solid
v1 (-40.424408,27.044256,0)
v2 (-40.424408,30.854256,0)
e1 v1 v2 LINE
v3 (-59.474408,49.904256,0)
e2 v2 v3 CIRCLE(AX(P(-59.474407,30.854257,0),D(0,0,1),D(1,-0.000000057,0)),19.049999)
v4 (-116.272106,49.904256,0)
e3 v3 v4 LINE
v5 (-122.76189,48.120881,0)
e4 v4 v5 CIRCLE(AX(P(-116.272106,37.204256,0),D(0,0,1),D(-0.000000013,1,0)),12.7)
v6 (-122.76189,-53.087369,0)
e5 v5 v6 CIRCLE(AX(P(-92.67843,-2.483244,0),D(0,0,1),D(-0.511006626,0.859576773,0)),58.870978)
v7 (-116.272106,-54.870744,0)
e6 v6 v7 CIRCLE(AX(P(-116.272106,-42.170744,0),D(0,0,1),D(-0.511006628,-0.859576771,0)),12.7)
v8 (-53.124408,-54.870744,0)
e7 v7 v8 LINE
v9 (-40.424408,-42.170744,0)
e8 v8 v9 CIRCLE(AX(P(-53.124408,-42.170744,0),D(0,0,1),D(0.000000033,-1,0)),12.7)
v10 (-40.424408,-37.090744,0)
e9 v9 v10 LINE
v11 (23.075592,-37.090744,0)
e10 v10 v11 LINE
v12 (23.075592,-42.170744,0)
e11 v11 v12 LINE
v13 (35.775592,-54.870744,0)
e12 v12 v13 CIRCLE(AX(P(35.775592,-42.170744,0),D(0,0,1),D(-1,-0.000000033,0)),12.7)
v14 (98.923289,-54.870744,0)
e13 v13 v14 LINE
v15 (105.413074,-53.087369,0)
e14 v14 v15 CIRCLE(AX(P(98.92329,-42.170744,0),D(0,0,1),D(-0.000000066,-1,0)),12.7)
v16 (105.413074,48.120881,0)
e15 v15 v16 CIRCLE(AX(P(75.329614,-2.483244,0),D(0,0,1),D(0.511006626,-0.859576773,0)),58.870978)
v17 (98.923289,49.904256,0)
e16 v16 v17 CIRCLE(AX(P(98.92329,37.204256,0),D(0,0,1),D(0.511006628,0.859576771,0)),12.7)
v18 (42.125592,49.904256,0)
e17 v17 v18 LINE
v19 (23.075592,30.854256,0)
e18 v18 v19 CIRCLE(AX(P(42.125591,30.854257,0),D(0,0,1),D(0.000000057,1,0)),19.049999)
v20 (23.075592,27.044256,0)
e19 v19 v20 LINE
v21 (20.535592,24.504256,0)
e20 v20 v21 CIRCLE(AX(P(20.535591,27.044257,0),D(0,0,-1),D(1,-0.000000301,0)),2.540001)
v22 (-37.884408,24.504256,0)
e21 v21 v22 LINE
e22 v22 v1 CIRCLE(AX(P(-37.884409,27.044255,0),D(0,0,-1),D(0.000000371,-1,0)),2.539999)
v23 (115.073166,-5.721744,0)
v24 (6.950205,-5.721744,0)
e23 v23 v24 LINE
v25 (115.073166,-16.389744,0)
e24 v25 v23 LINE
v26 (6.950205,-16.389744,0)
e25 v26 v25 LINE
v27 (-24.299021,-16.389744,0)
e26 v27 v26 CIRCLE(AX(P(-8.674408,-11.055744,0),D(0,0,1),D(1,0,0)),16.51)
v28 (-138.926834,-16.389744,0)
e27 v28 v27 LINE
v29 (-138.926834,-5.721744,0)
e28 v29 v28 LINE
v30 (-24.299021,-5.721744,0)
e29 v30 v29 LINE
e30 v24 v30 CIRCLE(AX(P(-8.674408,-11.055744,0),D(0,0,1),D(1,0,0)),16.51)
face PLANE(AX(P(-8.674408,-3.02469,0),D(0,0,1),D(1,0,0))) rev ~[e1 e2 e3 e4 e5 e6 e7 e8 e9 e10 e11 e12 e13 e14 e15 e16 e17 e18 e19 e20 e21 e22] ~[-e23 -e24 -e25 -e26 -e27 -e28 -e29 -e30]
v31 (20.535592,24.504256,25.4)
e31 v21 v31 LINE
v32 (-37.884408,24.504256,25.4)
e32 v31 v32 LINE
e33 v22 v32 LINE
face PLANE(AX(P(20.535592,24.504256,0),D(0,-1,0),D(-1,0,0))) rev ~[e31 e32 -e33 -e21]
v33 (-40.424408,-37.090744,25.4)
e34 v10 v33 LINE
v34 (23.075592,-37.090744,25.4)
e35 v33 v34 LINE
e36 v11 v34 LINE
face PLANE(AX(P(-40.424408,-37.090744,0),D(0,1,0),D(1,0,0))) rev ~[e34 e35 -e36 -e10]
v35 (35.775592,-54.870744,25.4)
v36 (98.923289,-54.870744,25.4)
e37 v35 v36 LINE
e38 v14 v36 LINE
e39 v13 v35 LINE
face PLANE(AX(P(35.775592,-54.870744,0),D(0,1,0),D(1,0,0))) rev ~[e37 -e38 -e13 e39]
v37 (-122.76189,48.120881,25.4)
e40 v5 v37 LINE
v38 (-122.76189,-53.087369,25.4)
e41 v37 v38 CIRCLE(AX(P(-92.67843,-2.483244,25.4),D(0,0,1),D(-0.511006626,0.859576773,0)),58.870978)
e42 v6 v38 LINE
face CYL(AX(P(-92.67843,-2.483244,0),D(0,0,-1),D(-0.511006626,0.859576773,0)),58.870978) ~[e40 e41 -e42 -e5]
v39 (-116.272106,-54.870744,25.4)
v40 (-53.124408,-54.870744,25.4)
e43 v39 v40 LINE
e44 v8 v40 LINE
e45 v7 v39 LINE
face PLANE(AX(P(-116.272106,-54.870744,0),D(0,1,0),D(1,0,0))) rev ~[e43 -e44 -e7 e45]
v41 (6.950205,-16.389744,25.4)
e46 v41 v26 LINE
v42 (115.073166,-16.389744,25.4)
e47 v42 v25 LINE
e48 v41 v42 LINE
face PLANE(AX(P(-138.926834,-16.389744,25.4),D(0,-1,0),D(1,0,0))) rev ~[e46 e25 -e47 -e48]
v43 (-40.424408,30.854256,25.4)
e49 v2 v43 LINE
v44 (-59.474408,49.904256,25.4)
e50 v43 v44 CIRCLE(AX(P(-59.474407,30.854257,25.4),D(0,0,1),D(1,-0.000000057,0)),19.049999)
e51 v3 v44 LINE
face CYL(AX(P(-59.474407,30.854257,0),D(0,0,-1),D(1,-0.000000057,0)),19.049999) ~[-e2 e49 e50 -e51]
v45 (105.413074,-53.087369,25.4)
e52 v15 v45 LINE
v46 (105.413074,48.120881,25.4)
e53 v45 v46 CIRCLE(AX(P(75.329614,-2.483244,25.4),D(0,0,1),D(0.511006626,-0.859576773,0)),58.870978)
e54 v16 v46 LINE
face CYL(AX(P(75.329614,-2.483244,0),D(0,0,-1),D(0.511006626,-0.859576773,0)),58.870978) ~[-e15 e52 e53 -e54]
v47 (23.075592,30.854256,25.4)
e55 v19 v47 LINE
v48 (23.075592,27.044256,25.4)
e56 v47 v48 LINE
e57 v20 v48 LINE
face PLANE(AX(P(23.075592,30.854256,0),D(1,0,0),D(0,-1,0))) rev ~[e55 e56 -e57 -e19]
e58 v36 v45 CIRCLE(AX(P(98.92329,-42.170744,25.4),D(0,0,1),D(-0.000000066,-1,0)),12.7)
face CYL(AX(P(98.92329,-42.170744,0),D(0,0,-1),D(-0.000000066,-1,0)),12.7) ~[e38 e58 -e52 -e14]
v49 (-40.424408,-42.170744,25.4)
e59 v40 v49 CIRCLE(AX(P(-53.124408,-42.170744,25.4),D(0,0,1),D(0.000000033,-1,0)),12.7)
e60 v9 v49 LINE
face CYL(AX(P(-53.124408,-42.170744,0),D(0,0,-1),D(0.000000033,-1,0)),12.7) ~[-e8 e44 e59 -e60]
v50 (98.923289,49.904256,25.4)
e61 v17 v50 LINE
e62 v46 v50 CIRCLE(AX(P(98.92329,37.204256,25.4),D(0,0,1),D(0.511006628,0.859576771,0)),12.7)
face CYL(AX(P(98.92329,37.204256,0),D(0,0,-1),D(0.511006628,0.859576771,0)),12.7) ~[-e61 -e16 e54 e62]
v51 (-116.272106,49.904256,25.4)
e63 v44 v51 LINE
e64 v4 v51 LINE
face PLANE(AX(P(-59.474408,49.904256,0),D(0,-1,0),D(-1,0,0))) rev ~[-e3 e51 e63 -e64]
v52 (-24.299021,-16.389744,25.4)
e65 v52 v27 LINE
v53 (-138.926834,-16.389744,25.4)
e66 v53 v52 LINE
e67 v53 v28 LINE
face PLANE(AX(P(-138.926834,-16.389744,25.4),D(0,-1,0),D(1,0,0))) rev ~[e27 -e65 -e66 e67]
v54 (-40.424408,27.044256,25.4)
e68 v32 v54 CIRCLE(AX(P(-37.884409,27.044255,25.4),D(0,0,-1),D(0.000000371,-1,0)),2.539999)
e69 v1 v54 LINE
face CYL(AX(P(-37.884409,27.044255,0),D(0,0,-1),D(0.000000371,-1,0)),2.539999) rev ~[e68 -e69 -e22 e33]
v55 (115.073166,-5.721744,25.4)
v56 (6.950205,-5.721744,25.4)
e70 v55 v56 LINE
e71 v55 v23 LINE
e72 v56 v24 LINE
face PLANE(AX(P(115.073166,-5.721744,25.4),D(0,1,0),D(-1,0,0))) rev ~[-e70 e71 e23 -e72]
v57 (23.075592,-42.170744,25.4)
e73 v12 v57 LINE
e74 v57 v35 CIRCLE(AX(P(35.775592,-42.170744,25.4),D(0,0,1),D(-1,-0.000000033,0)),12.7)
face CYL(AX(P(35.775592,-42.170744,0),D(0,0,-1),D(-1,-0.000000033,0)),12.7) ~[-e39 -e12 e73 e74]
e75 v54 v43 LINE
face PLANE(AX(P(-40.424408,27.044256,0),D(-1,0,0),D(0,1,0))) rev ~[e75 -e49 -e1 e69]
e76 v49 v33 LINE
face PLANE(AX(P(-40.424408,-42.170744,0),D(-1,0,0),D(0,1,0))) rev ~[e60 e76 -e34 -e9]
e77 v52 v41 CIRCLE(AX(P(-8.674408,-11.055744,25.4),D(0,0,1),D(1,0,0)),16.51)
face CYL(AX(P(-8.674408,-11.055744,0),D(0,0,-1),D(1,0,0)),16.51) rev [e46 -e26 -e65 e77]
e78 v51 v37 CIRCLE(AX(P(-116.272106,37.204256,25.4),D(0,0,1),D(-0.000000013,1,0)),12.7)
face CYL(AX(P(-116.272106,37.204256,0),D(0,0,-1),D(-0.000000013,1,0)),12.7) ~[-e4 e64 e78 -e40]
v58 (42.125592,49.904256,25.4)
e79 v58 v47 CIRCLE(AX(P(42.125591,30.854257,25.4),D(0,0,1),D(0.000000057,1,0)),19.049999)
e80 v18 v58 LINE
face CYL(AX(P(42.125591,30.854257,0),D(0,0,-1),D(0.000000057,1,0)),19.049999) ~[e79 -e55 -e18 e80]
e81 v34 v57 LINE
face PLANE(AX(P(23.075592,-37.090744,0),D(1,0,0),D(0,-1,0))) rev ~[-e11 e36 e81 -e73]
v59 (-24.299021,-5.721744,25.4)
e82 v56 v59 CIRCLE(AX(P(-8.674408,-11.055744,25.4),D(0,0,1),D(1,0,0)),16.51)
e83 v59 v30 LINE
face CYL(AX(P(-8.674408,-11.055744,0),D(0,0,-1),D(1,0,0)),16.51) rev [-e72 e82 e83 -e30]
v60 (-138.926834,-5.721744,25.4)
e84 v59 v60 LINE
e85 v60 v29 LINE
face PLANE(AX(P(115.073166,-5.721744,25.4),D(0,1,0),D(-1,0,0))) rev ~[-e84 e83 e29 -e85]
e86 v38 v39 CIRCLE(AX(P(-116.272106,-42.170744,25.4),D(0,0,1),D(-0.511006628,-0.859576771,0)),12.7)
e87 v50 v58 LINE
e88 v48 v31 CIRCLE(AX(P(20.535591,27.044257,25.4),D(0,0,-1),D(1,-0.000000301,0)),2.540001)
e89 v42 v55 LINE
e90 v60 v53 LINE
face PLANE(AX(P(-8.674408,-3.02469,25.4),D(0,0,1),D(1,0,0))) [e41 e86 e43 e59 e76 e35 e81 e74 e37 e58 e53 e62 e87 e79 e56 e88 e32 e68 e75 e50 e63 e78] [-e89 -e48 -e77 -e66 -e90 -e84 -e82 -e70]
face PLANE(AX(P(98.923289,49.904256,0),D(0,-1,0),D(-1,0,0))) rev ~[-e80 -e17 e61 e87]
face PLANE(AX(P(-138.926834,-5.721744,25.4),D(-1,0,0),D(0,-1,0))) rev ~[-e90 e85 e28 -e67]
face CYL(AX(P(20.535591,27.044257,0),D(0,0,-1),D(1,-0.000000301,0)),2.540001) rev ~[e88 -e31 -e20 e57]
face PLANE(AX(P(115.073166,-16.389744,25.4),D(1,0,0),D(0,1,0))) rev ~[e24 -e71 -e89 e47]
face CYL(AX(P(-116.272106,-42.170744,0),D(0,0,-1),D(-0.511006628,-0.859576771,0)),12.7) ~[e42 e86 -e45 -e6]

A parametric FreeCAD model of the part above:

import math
import FreeCAD as App
import Part
import Sketcher

V = App.Vector
Q = App.Units.Quantity


def add_polygon(sketch, points):
    """Adds a closed chain of lines whose ends are joined by coincident constraints."""
    first, n = sketch.GeometryCount, len(points)
    for a, b in zip(points, points[1:] + points[:1]):
        sketch.addGeometry(Part.LineSegment(App.Vector(*a, 0), App.Vector(*b, 0)), False)
    for i in range(n):
        sketch.addConstraint(Sketcher.Constraint("Coincident", first + i, 2, first + (i + 1) % n, 1))

doc = App.newDocument("Part")
body = doc.addObject("PartDesign::Body", "Body")

sketch1 = doc.addObject("Sketcher::SketchObject", "Sketch")
body.addObject(sketch1)
sketch1.AttachmentSupport = (doc.XY_Plane, [""])
sketch1.MapMode = "FlatFace"
sketch1.addGeometry([
    Part.LineSegment(V(-59.5, 49.9, 0), V(-116.3, 49.9, 0)),
    Part.ArcOfCircle(Part.Circle(V(-116.3, 37.2, 0), V(0, 0, 1), 12.7), math.radians(90), math.radians(121)),
    Part.ArcOfCircle(Part.Circle(V(-92.7, -2.5, 0), V(0, 0, 1), 58.9), math.radians(121), math.radians(239)),
    Part.ArcOfCircle(Part.Circle(V(-116.3, -42.2, 0), V(0, 0, 1), 12.7), math.radians(-121), math.radians(-90)),
    Part.LineSegment(V(-116.3, -54.9, 0), V(-53.1, -54.9, 0)),
    Part.ArcOfCircle(Part.Circle(V(-53.1, -42.2, 0), V(0, 0, 1), 12.7), math.radians(-90), math.radians(0)),
    Part.LineSegment(V(-40.4, -42.2, 0), V(-40.4, -37.1, 0)),
    Part.LineSegment(V(-40.4, -37.1, 0), V(23.1, -37.1, 0)),
    Part.LineSegment(V(23.1, -37.1, 0), V(23.1, -42.2, 0)),
    Part.ArcOfCircle(Part.Circle(V(35.8, -42.2, 0), V(0, 0, 1), 12.7), math.radians(-180), math.radians(-90)),
    Part.LineSegment(V(35.8, -54.9, 0), V(98.9, -54.9, 0)),
    Part.ArcOfCircle(Part.Circle(V(98.9, -42.2, 0), V(0, 0, 1), 12.7), math.radians(-90), math.radians(-59)),
    Part.ArcOfCircle(Part.Circle(V(75.3, -2.5, 0), V(0, 0, 1), 58.9), math.radians(-59), math.radians(59)),
    Part.ArcOfCircle(Part.Circle(V(98.9, 37.2, 0), V(0, 0, 1), 12.7), math.radians(59), math.radians(90)),
    Part.LineSegment(V(98.9, 49.9, 0), V(42.1, 49.9, 0)),
    Part.ArcOfCircle(Part.Circle(V(42.1, 30.9, 0), V(0, 0, 1), 19), math.radians(90), math.radians(180)),
    Part.LineSegment(V(23.1, 30.9, 0), V(23.1, 27, 0)),
    Part.ArcOfCircle(Part.Circle(V(20.5, 27, 0), V(0, 0, 1), 2.5), math.radians(-90), math.radians(0)),
    Part.LineSegment(V(20.5, 24.5, 0), V(-37.9, 24.5, 0)),
    Part.ArcOfCircle(Part.Circle(V(-37.9, 27, 0), V(0, 0, 1), 2.5), math.radians(180), math.radians(270)),
    Part.LineSegment(V(-40.4, 27, 0), V(-40.4, 30.9, 0)),
    Part.ArcOfCircle(Part.Circle(V(-59.5, 30.9, 0), V(0, 0, 1), 19), math.radians(0), math.radians(90)),
    Part.Circle(V(-8.7, -11.1, 0), V(0, 0, 1), 16.5),
], False)
sketch1.addConstraint([
    Sketcher.Constraint("Tangent", 0, 2, 1, 1),
    Sketcher.Constraint("Tangent", 1, 2, 2, 1),
    Sketcher.Constraint("Tangent", 2, 2, 3, 1),
    Sketcher.Constraint("Tangent", 3, 2, 4, 1),
    Sketcher.Constraint("Tangent", 4, 2, 5, 1),
    Sketcher.Constraint("Tangent", 5, 2, 6, 1),
    Sketcher.Constraint("Coincident", 6, 2, 7, 1),
    Sketcher.Constraint("Coincident", 7, 2, 8, 1),
    Sketcher.Constraint("Tangent", 8, 2, 9, 1),
    Sketcher.Constraint("Tangent", 9, 2, 10, 1),
    Sketcher.Constraint("Tangent", 10, 2, 11, 1),
    Sketcher.Constraint("Tangent", 11, 2, 12, 1),
    Sketcher.Constraint("Tangent", 12, 2, 13, 1),
    Sketcher.Constraint("Tangent", 13, 2, 14, 1),
    Sketcher.Constraint("Tangent", 14, 2, 15, 1),
    Sketcher.Constraint("Tangent", 15, 2, 16, 1),
    Sketcher.Constraint("Tangent", 16, 2, 17, 2),
    Sketcher.Constraint("Tangent", 17, 1, 18, 1),
    Sketcher.Constraint("Tangent", 18, 2, 19, 2),
    Sketcher.Constraint("Tangent", 19, 1, 20, 1),
    Sketcher.Constraint("Tangent", 20, 2, 21, 1),
    Sketcher.Constraint("Tangent", 21, 2, 0, 1),
    Sketcher.Constraint("Horizontal", 0),
    Sketcher.Constraint("Horizontal", 4),
    Sketcher.Constraint("Vertical", 6),
    Sketcher.Constraint("Horizontal", 7),
    Sketcher.Constraint("Vertical", 8),
    Sketcher.Constraint("Horizontal", 10),
    Sketcher.Constraint("Horizontal", 14),
    Sketcher.Constraint("Vertical", 16),
    Sketcher.Constraint("Horizontal", 18),
    Sketcher.Constraint("Vertical", 20),
    Sketcher.Constraint("Equal", 1, 3),
    Sketcher.Constraint("Equal", 3, 5),
    Sketcher.Constraint("Equal", 5, 9),
    Sketcher.Constraint("Equal", 9, 11),
    Sketcher.Constraint("Equal", 2, 12),
    Sketcher.Constraint("Equal", 11, 13),
    Sketcher.Constraint("Equal", 17, 19),
    Sketcher.Constraint("Equal", 15, 21),
    Sketcher.Constraint("Horizontal", 5, 3, 9, 3),
    Sketcher.Constraint("Horizontal", 2, 3, 12, 3),
    Sketcher.Constraint("Horizontal", 1, 3, 13, 3),
    Sketcher.Constraint("Vertical", 1, 3, 3, 3),
    Sketcher.Constraint("Vertical", 8, 2, 15, 2),
    Sketcher.Constraint("Vertical", 6, 2, 19, 1),
    Sketcher.Constraint("Equal", 4, 10),
    Sketcher.Constraint("Diameter", 22, Q("1.3 in")),
    Sketcher.Constraint("Radius", 1, Q("0.5 in")),
    Sketcher.Constraint("Radius", 17, Q("0.1 in")),
    Sketcher.Constraint("Radius", 15, Q("0.75 in")),
    Sketcher.Constraint("DistanceX", 7, 1, 7, 2, Q("2.5 in")),
    Sketcher.Constraint("DistanceY", 6, 1, 6, 2, Q("0.2 in")),
    Sketcher.Constraint("DistanceX", 22, 3, 15, 3, Q("2 in")),
    Sketcher.Constraint("DistanceY", 17, 1, 14, 2, Q("1 in")),
    Sketcher.Constraint("DistanceY", 22, 3, 19, 3, Q("1.5 in")),
    Sketcher.Constraint("DistanceY", 2, 3, 1, 3, Q("1.5625 in")),
    Sketcher.Constraint("Radius", 2, Q("58.870978 mm")),
    Sketcher.Constraint("DistanceX", 3, 3, 9, 3, Q("152.047698 mm")),
    Sketcher.Constraint("DistanceX", 2, 3, -1, 1, Q("92.67843 mm")),
    Sketcher.Constraint("DistanceY", -1, 1, 1, 2, Q("48.120881 mm")),
])
pad1 = doc.addObject("PartDesign::Pad", "Pad")
body.addObject(pad1)
pad1.Profile = sketch1
pad1.Length = Q("1 in")

sketch2 = doc.addObject("Sketcher::SketchObject", "Sketch001")
body.addObject(sketch2)
sketch2.AttachmentSupport = (doc.XY_Plane, [""])
sketch2.MapMode = "FlatFace"
sketch2.AttachmentOffset = App.Placement(V(0, 0, 1 * 25.4), App.Rotation())
add_polygon(sketch2, [(115, -6), (-139, -6), (-139, -16), (115, -16)])
sketch2.addConstraint([
    Sketcher.Constraint("Horizontal", 0),
    Sketcher.Constraint("Vertical", 1),
    Sketcher.Constraint("Horizontal", 2),
    Sketcher.Constraint("Vertical", 3),
    Sketcher.Constraint("DistanceX", 0, 2, 0, 1, Q("10 in")),
    Sketcher.Constraint("DistanceY", 1, 2, 1, 1, Q("0.42 in")),
    Sketcher.Constraint("DistanceX", 0, 2, -1, 1, Q("138.926834 mm")),
    Sketcher.Constraint("DistanceY", 0, 2, -1, 1, Q("5.721744 mm")),
])
pocket1 = doc.addObject("PartDesign::Pocket", "Pocket")
body.addObject(pocket1)
pocket1.Profile = sketch2
pocket1.Length = Q("1 in")

doc.recompute()
